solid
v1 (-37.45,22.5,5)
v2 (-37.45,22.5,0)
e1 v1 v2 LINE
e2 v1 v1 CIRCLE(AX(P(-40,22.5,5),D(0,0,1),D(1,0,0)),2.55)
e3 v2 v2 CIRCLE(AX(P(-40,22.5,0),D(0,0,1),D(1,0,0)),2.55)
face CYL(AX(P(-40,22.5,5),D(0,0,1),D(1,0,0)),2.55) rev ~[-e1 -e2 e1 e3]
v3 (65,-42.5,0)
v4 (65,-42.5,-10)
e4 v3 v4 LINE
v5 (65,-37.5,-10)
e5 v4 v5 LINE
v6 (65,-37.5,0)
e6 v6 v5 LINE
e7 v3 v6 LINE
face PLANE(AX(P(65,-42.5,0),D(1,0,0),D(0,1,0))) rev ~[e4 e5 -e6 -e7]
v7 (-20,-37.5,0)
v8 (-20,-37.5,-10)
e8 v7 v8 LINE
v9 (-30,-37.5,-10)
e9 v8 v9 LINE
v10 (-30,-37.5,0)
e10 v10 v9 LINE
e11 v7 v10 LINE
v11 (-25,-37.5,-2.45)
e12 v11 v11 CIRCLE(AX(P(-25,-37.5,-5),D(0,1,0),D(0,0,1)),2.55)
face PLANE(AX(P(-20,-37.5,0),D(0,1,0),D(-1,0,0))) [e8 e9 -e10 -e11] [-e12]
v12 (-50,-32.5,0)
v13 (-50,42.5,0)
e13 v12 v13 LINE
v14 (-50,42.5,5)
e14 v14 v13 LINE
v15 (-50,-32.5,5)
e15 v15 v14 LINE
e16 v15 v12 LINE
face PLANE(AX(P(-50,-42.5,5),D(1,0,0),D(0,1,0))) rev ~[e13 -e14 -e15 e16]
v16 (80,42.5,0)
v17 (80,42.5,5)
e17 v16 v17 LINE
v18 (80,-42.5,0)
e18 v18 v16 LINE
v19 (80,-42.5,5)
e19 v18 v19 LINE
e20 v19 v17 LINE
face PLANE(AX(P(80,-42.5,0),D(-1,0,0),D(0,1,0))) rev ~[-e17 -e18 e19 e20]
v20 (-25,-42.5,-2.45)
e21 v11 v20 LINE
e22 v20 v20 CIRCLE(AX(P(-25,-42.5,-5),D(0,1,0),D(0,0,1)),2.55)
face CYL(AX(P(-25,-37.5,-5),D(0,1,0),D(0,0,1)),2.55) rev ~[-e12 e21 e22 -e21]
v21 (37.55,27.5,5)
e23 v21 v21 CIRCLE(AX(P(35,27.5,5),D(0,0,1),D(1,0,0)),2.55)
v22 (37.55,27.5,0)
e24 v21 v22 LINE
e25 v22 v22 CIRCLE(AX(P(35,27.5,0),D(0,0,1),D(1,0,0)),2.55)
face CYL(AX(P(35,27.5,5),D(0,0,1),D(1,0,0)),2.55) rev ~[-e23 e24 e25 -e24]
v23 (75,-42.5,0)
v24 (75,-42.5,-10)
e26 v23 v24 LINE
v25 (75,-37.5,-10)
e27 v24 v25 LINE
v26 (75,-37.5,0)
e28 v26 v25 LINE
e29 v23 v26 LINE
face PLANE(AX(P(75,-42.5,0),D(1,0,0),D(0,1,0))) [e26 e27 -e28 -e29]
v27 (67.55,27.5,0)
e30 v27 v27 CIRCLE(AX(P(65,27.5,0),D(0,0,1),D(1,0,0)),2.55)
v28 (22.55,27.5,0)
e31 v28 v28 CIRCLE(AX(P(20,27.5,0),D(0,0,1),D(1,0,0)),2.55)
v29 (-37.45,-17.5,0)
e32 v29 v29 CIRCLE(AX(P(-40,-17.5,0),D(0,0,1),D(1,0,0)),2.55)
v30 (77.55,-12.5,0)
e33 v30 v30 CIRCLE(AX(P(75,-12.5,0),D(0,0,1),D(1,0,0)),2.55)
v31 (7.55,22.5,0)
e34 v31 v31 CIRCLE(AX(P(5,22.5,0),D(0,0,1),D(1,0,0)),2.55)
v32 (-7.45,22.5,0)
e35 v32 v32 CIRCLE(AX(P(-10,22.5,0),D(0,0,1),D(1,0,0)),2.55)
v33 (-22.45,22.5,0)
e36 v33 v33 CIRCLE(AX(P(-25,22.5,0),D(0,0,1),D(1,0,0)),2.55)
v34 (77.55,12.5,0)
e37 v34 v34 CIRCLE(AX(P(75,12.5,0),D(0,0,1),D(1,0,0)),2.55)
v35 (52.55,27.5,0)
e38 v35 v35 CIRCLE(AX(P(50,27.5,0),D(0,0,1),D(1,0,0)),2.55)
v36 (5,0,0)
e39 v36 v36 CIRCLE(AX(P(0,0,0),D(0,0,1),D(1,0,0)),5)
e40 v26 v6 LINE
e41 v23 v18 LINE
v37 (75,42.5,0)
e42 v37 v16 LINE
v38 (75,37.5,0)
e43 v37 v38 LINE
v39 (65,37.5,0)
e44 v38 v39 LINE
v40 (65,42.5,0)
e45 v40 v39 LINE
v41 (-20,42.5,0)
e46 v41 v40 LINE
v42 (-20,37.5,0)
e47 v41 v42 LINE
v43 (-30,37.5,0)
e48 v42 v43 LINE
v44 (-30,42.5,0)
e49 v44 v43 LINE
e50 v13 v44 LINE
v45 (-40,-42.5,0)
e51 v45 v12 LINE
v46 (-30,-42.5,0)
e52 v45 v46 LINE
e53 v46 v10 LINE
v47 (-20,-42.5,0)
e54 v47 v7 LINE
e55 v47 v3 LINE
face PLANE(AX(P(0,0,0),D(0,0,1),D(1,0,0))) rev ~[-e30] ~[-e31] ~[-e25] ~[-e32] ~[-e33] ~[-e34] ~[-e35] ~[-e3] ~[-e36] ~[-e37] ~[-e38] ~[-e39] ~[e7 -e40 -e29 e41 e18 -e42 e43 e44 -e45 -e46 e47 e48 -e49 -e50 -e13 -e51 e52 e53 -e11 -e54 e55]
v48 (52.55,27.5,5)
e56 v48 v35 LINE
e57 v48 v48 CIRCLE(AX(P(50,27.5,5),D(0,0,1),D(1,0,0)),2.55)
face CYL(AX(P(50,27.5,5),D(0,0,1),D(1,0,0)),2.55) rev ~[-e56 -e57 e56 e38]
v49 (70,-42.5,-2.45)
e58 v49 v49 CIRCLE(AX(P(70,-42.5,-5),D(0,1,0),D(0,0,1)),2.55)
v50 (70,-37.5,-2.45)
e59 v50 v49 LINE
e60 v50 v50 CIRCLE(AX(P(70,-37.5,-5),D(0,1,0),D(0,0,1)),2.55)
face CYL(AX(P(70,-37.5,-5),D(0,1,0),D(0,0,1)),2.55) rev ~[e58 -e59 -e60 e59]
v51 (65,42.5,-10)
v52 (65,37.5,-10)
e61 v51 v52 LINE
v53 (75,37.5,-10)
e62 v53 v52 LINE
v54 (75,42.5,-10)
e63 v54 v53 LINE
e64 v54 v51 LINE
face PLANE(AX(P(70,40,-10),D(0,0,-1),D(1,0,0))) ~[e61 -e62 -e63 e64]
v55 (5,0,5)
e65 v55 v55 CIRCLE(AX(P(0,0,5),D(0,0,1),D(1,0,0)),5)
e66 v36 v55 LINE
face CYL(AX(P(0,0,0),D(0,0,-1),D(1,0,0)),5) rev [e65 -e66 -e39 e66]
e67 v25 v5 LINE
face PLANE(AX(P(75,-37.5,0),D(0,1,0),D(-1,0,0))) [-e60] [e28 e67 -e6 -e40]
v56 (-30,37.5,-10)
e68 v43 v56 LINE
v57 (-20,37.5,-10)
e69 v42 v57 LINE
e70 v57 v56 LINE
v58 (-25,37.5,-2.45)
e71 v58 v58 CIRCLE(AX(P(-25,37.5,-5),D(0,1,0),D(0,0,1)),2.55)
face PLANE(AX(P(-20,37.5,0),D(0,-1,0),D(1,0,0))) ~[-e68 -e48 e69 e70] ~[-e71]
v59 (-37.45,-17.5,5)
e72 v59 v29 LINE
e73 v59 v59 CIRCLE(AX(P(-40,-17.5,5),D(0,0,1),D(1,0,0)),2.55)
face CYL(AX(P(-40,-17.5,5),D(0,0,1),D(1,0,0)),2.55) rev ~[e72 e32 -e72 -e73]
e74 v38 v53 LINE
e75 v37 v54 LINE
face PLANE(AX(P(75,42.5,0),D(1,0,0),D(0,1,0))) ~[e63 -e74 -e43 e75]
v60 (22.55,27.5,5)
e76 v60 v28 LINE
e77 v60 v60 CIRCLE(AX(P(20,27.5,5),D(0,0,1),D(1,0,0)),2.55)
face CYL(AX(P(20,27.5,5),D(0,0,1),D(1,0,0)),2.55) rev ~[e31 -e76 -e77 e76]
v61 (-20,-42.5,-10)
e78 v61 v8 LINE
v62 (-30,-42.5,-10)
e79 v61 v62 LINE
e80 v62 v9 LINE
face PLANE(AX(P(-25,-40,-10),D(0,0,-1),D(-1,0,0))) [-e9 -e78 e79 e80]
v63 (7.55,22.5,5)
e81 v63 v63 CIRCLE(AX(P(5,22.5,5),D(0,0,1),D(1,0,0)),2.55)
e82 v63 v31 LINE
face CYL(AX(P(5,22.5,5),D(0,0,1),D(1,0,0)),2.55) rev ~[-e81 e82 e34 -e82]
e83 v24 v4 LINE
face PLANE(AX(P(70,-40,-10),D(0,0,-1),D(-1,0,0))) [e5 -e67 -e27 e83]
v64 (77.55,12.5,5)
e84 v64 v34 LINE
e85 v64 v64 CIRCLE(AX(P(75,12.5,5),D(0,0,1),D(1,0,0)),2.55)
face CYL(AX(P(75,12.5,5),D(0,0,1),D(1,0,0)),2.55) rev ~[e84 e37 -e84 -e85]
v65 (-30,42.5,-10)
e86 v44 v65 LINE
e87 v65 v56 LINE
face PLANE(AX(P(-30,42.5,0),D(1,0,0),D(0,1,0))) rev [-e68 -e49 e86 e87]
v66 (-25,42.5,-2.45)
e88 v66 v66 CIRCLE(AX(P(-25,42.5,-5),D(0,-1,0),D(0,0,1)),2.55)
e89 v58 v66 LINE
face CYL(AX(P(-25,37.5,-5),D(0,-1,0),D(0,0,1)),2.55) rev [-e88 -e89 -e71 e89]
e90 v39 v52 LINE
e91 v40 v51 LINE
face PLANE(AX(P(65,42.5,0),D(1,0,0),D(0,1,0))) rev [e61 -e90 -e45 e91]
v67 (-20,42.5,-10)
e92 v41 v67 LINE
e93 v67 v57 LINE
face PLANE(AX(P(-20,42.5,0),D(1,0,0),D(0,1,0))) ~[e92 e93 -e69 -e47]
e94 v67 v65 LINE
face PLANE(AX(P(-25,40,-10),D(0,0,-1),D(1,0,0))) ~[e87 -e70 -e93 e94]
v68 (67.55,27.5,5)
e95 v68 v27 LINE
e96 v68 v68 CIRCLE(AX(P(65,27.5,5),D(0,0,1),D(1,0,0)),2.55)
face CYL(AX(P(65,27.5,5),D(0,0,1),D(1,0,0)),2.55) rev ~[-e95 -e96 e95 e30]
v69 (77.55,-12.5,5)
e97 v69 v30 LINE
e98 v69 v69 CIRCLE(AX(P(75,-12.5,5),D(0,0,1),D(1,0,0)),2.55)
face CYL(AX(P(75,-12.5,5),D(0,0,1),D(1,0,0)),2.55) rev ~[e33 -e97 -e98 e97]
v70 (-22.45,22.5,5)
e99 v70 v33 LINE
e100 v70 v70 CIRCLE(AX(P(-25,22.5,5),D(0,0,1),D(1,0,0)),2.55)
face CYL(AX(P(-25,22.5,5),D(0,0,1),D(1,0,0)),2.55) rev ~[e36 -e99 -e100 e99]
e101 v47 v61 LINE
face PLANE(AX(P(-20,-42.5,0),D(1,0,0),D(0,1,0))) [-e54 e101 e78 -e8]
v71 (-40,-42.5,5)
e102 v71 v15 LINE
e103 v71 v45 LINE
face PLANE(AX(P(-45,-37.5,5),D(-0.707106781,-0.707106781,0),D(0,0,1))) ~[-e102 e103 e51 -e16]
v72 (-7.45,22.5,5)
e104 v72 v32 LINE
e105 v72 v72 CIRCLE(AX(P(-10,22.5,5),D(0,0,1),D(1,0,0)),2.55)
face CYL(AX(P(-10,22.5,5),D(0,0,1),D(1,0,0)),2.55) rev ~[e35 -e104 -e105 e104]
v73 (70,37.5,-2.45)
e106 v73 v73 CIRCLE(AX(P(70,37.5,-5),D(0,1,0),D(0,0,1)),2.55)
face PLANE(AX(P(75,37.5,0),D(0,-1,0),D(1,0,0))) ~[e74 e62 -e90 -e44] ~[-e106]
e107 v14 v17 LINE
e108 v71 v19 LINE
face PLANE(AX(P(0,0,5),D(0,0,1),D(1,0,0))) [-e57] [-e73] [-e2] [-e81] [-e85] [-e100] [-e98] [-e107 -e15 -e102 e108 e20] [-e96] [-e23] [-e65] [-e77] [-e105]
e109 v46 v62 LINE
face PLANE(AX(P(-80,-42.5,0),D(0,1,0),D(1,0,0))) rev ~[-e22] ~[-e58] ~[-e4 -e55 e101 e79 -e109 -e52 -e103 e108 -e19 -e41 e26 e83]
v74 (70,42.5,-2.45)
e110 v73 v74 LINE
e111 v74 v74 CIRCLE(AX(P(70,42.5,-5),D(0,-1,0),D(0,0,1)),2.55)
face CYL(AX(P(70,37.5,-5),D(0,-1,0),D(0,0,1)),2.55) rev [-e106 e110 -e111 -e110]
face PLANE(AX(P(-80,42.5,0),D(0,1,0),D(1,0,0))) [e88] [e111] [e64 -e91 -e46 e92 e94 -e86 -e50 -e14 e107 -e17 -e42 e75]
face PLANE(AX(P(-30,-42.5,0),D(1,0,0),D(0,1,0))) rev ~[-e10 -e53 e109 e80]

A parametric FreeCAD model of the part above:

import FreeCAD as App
import Part
import Sketcher
from FreeCAD import Vector


def edges_at(feature, points):
    """Names of the edges that pass closest to the given points."""
    edges = feature.Shape.Edges
    near = lambda p: min(range(len(edges)), key=lambda i: edges[i].distToShape(Part.Vertex(*p))[0])
    return sorted({f"Edge{near(p) + 1}" for p in points})


def add_polygon(sketch, points):
    """Adds a closed chain of lines whose ends are joined by coincident constraints."""
    first, n = sketch.GeometryCount, len(points)
    for a, b in zip(points, points[1:] + points[:1]):
        sketch.addGeometry(Part.LineSegment(App.Vector(*a, 0), App.Vector(*b, 0)), False)
    for i in range(n):
        sketch.addConstraint(Sketcher.Constraint("Coincident", first + i, 2, first + (i + 1) % n, 1))

doc = App.newDocument("Part")
params = doc.addObject("Spreadsheet::Sheet", "Params")
for row, (alias, value) in enumerate([
    ("sketch1_diameter", "10 mm"),
    ("sketch1_width", "160 mm"),
    ("sketch1_height", "85 mm"),
    ("pad1_length", "5 mm"),
    ("sketch2_width", "30 mm"),
    ("sketch2_height", "85 mm"),
    ("pocket1_length", "15 mm"),
    ("sketch3_diameter", "5.1 mm"),
    ("pocket2_length", "15 mm"),
    ("chamfer_size", "10 mm"),
    ("sketch4_width", "10 mm"),
    ("sketch4_height", "5 mm"),
    ("pad2_length", "10 mm"),
    ("sketch5_diameter", "5.1 mm"),
    ("sketch6_diameter", "5.1 mm"),
], start=1):
    params.set(f"A{row}", alias)
    params.set(f"B{row}", "=" + value)
    params.setAlias(f"B{row}", alias)

body = doc.addObject("PartDesign::Body", "Body")

sketch1 = body.newObject("Sketcher::SketchObject", "Sketch")
sketch1.AttachmentSupport = (doc.getObject("XY_Plane"), [""])
sketch1.MapMode = "FlatFace"
add_polygon(sketch1, [(-80, 42), (-80, -42), (80, -42), (80, 42)])
sketch1.addGeometry(Part.Circle(Vector(0, 0, 0), Vector(0, 0, 1), 5), False)
sketch1.addConstraint([
    Sketcher.Constraint("Vertical", 0),
    Sketcher.Constraint("Horizontal", 1),
    Sketcher.Constraint("Vertical", 2),
    Sketcher.Constraint("Horizontal", 3),
    Sketcher.Constraint("Coincident", 4, 3, -1, 1),
    Sketcher.Constraint("Symmetric", 0, 2, 2, 2, -1, 1),
    Sketcher.Constraint("Diameter", 4, 10.0),
    Sketcher.Constraint("DistanceX", 1, 1, 1, 2, 160.0),
    Sketcher.Constraint("DistanceY", 0, 2, 0, 1, 85.0),
])
sketch1.setExpression("Constraints[10]", "Params.sketch1_diameter")
sketch1.setExpression("Constraints[11]", "Params.sketch1_width")
sketch1.setExpression("Constraints[12]", "Params.sketch1_height")
pad1 = body.newObject("PartDesign::Pad", "Pad")
pad1.Profile = sketch1
pad1.setExpression("Length", "Params.pad1_length")

sketch2 = body.newObject("Sketcher::SketchObject", "Sketch001")
sketch2.AttachmentSupport = (doc.getObject("XY_Plane"), [""])
sketch2.MapMode = "FlatFace"
sketch2.AttachmentOffset = App.Placement(Vector(0, 0, 5), App.Rotation())
add_polygon(sketch2, [(-80, 42), (-80, -42), (-50, -42), (-50, 42)])
sketch2.addConstraint([
    Sketcher.Constraint("Vertical", 0),
    Sketcher.Constraint("Horizontal", 1),
    Sketcher.Constraint("Vertical", 2),
    Sketcher.Constraint("Horizontal", 3),
    Sketcher.Constraint("DistanceX", 1, 1, 1, 2, 30.0),
    Sketcher.Constraint("DistanceY", 0, 2, 0, 1, 85.0),
    Sketcher.Constraint("DistanceX", 0, 2, -1, 1, 80.0),
    Sketcher.Constraint("DistanceY", 0, 2, -1, 1, 42.5),
])
sketch2.setExpression("Constraints[8]", "Params.sketch2_width")
sketch2.setExpression("Constraints[9]", "Params.sketch2_height")
pocket1 = body.newObject("PartDesign::Pocket", "Pocket")
pocket1.Profile = sketch2
pocket1.setExpression("Length", "Params.pocket1_length")

sketch3 = body.newObject("Sketcher::SketchObject", "Sketch002")
sketch3.AttachmentSupport = (doc.getObject("XY_Plane"), [""])
sketch3.MapMode = "FlatFace"
sketch3.AttachmentOffset = App.Placement(Vector(0, 0, 5), App.Rotation())
sketch3.addGeometry([
    Part.Circle(Vector(65, 27.5, 0), Vector(0, 0, 1), 2.5),
    Part.Circle(Vector(50, 27.5, 0), Vector(0, 0, 1), 2.5),
    Part.Circle(Vector(35, 27.5, 0), Vector(0, 0, 1), 2.5),
    Part.Circle(Vector(20, 27.5, 0), Vector(0, 0, 1), 2.5),
    Part.Circle(Vector(5, 22.5, 0), Vector(0, 0, 1), 2.5),
    Part.Circle(Vector(-10, 22.5, 0), Vector(0, 0, 1), 2.5),
    Part.Circle(Vector(-25, 22.5, 0), Vector(0, 0, 1), 2.5),
    Part.Circle(Vector(-40, 22.5, 0), Vector(0, 0, 1), 2.5),
    Part.Circle(Vector(-40, -17.5, 0), Vector(0, 0, 1), 2.5),
], False)
sketch3.addConstraint([
    Sketcher.Constraint("Equal", 0, 1),
    Sketcher.Constraint("Equal", 1, 2),
    Sketcher.Constraint("Equal", 2, 3),
    Sketcher.Constraint("Equal", 3, 4),
    Sketcher.Constraint("Equal", 4, 5),
    Sketcher.Constraint("Equal", 5, 6),
    Sketcher.Constraint("Equal", 6, 7),
    Sketcher.Constraint("Equal", 7, 8),
    Sketcher.Constraint("Horizontal", 0, 3, 1, 3),
    Sketcher.Constraint("Horizontal", 1, 3, 2, 3),
    Sketcher.Constraint("Horizontal", 2, 3, 3, 3),
    Sketcher.Constraint("Horizontal", 4, 3, 5, 3),
    Sketcher.Constraint("Horizontal", 5, 3, 6, 3),
    Sketcher.Constraint("Horizontal", 6, 3, 7, 3),
    Sketcher.Constraint("Vertical", 7, 3, 8, 3),
    Sketcher.Constraint("Diameter", 0, 5.1),
    Sketcher.Constraint("DistanceX", -1, 1, 0, 3, 65.0),
    Sketcher.Constraint("DistanceX", -1, 1, 1, 3, 50.0),
    Sketcher.Constraint("DistanceX", -1, 1, 2, 3, 35.0),
    Sketcher.Constraint("DistanceX", -1, 1, 3, 3, 20.0),
    Sketcher.Constraint("DistanceX", -1, 1, 4, 3, 5.0),
    Sketcher.Constraint("DistanceX", 5, 3, -1, 1, 10.0),
    Sketcher.Constraint("DistanceX", 6, 3, -1, 1, 25.0),
    Sketcher.Constraint("DistanceX", 7, 3, -1, 1, 40.0),
    Sketcher.Constraint("DistanceY", 4, 3, 3, 3, 5.0),
    Sketcher.Constraint("DistanceY", 8, 3, 7, 3, 40.0),
    Sketcher.Constraint("DistanceY", -1, 1, 0, 3, 27.5),
])
sketch3.setExpression("Constraints[15]", "Params.sketch3_diameter")
pocket2 = body.newObject("PartDesign::Pocket", "Pocket001")
pocket2.Profile = sketch3
pocket2.setExpression("Length", "Params.pocket2_length")
doc.recompute()

chamfer = body.newObject("PartDesign::Chamfer", "Chamfer")
chamfer.Base = (pocket2, edges_at(pocket2, [(-50, -42.5, 2.5)]))
chamfer.setExpression("Size", "Params.chamfer_size")

sketch4 = body.newObject("Sketcher::SketchObject", "Sketch003")
sketch4.AttachmentSupport = (doc.getObject("XY_Plane"), [""])
sketch4.MapMode = "FlatFace"
add_polygon(sketch4, [(75, -38), (75, -42), (65, -42), (65, -38)])
add_polygon(sketch4, [(-20, -38), (-20, -42), (-30, -42), (-30, -38)])
sketch4.addConstraint([
    Sketcher.Constraint("Vertical", 0),
    Sketcher.Constraint("Horizontal", 1),
    Sketcher.Constraint("Vertical", 2),
    Sketcher.Constraint("Horizontal", 3),
    Sketcher.Constraint("Vertical", 4),
    Sketcher.Constraint("Horizontal", 5),
    Sketcher.Constraint("Vertical", 6),
    Sketcher.Constraint("Horizontal", 7),
    Sketcher.Constraint("Horizontal", 1, 2, 4, 2),
    Sketcher.Constraint("Horizontal", 3, 2, 6, 2),
    Sketcher.Constraint("Equal", 3, 5),
    Sketcher.Constraint("DistanceX", 1, 2, 1, 1, 10.0),
    Sketcher.Constraint("DistanceY", 0, 2, 0, 1, 5.0),
    Sketcher.Constraint("DistanceX", -1, 1, 0, 2, 75.0),
    Sketcher.Constraint("DistanceX", 4, 2, -1, 1, 20.0),
    Sketcher.Constraint("DistanceY", 0, 2, -1, 1, 42.5),
])
sketch4.setExpression("Constraints[19]", "Params.sketch4_width")
sketch4.setExpression("Constraints[20]", "Params.sketch4_height")
pad2 = body.newObject("PartDesign::Pad", "Pad001")
pad2.Profile = sketch4
pad2.setExpression("Length", "Params.pad2_length")
pad2.Reversed = True

sketch5 = body.newObject("Sketcher::SketchObject", "Sketch004")
sketch5.AttachmentSupport = (doc.getObject("XZ_Plane"), [""])
sketch5.MapMode = "FlatFace"
sketch5.AttachmentOffset = App.Placement(Vector(0, 0, 37.5), App.Rotation())
sketch5.addGeometry([
    Part.Circle(Vector(70, -5, 0), Vector(0, 0, 1), 2.5),
    Part.Circle(Vector(-25, -5, 0), Vector(0, 0, 1), 2.5),
], False)
sketch5.addConstraint([
    Sketcher.Constraint("Equal", 0, 1),
    Sketcher.Constraint("Horizontal", 0, 3, 1, 3),
    Sketcher.Constraint("Diameter", 0, 5.1),
    Sketcher.Constraint("DistanceX", -1, 1, 0, 3, 70.0),
    Sketcher.Constraint("DistanceY", 0, 3, -1, 1, 5.0),
    Sketcher.Constraint("DistanceX", 1, 3, -1, 1, 25.0),
])
sketch5.setExpression("Constraints[2]", "Params.sketch5_diameter")
pocket3 = body.newObject("PartDesign::Pocket", "Pocket002")
pocket3.Profile = sketch5
pocket3.Type = "ThroughAll"
pocket3.Reversed = True
doc.recompute()

mirrored = body.newObject("PartDesign::Mirrored", "Mirrored")
mirrored.Originals = [pad2]
mirrored.MirrorPlane = (doc.getObject("XZ_Plane"), [""])
body.Tip = mirrored
doc.recompute()

mirrored2 = body.newObject("PartDesign::Mirrored", "Mirrored001")
mirrored2.Originals = [pocket3]
mirrored2.MirrorPlane = (doc.getObject("XZ_Plane"), [""])
body.Tip = mirrored2

sketch6 = body.newObject("Sketcher::SketchObject", "Sketch005")
sketch6.AttachmentSupport = (doc.getObject("XY_Plane"), [""])
sketch6.MapMode = "FlatFace"
sketch6.AttachmentOffset = App.Placement(Vector(0, 0, 5), App.Rotation())
sketch6.addGeometry([
    Part.Circle(Vector(75, 12.5, 0), Vector(0, 0, 1), 2.5),
    Part.Circle(Vector(75, -12.5, 0), Vector(0, 0, 1), 2.5),
], False)
sketch6.addConstraint([
    Sketcher.Constraint("Equal", 0, 1),
    Sketcher.Constraint("Symmetric", 0, 3, 1, 3, -1),
    Sketcher.Constraint("Diameter", 0, 5.1),
    Sketcher.Constraint("DistanceX", -1, 1, 0, 3, 75.0),
    Sketcher.Constraint("DistanceY", 1, 3, 0, 3, 25.0),
])
sketch6.setExpression("Constraints[2]", "Params.sketch6_diameter")
pocket4 = body.newObject("PartDesign::Pocket", "Pocket003")
pocket4.Profile = sketch6
pocket4.Type = "ThroughAll"

doc.recompute()
